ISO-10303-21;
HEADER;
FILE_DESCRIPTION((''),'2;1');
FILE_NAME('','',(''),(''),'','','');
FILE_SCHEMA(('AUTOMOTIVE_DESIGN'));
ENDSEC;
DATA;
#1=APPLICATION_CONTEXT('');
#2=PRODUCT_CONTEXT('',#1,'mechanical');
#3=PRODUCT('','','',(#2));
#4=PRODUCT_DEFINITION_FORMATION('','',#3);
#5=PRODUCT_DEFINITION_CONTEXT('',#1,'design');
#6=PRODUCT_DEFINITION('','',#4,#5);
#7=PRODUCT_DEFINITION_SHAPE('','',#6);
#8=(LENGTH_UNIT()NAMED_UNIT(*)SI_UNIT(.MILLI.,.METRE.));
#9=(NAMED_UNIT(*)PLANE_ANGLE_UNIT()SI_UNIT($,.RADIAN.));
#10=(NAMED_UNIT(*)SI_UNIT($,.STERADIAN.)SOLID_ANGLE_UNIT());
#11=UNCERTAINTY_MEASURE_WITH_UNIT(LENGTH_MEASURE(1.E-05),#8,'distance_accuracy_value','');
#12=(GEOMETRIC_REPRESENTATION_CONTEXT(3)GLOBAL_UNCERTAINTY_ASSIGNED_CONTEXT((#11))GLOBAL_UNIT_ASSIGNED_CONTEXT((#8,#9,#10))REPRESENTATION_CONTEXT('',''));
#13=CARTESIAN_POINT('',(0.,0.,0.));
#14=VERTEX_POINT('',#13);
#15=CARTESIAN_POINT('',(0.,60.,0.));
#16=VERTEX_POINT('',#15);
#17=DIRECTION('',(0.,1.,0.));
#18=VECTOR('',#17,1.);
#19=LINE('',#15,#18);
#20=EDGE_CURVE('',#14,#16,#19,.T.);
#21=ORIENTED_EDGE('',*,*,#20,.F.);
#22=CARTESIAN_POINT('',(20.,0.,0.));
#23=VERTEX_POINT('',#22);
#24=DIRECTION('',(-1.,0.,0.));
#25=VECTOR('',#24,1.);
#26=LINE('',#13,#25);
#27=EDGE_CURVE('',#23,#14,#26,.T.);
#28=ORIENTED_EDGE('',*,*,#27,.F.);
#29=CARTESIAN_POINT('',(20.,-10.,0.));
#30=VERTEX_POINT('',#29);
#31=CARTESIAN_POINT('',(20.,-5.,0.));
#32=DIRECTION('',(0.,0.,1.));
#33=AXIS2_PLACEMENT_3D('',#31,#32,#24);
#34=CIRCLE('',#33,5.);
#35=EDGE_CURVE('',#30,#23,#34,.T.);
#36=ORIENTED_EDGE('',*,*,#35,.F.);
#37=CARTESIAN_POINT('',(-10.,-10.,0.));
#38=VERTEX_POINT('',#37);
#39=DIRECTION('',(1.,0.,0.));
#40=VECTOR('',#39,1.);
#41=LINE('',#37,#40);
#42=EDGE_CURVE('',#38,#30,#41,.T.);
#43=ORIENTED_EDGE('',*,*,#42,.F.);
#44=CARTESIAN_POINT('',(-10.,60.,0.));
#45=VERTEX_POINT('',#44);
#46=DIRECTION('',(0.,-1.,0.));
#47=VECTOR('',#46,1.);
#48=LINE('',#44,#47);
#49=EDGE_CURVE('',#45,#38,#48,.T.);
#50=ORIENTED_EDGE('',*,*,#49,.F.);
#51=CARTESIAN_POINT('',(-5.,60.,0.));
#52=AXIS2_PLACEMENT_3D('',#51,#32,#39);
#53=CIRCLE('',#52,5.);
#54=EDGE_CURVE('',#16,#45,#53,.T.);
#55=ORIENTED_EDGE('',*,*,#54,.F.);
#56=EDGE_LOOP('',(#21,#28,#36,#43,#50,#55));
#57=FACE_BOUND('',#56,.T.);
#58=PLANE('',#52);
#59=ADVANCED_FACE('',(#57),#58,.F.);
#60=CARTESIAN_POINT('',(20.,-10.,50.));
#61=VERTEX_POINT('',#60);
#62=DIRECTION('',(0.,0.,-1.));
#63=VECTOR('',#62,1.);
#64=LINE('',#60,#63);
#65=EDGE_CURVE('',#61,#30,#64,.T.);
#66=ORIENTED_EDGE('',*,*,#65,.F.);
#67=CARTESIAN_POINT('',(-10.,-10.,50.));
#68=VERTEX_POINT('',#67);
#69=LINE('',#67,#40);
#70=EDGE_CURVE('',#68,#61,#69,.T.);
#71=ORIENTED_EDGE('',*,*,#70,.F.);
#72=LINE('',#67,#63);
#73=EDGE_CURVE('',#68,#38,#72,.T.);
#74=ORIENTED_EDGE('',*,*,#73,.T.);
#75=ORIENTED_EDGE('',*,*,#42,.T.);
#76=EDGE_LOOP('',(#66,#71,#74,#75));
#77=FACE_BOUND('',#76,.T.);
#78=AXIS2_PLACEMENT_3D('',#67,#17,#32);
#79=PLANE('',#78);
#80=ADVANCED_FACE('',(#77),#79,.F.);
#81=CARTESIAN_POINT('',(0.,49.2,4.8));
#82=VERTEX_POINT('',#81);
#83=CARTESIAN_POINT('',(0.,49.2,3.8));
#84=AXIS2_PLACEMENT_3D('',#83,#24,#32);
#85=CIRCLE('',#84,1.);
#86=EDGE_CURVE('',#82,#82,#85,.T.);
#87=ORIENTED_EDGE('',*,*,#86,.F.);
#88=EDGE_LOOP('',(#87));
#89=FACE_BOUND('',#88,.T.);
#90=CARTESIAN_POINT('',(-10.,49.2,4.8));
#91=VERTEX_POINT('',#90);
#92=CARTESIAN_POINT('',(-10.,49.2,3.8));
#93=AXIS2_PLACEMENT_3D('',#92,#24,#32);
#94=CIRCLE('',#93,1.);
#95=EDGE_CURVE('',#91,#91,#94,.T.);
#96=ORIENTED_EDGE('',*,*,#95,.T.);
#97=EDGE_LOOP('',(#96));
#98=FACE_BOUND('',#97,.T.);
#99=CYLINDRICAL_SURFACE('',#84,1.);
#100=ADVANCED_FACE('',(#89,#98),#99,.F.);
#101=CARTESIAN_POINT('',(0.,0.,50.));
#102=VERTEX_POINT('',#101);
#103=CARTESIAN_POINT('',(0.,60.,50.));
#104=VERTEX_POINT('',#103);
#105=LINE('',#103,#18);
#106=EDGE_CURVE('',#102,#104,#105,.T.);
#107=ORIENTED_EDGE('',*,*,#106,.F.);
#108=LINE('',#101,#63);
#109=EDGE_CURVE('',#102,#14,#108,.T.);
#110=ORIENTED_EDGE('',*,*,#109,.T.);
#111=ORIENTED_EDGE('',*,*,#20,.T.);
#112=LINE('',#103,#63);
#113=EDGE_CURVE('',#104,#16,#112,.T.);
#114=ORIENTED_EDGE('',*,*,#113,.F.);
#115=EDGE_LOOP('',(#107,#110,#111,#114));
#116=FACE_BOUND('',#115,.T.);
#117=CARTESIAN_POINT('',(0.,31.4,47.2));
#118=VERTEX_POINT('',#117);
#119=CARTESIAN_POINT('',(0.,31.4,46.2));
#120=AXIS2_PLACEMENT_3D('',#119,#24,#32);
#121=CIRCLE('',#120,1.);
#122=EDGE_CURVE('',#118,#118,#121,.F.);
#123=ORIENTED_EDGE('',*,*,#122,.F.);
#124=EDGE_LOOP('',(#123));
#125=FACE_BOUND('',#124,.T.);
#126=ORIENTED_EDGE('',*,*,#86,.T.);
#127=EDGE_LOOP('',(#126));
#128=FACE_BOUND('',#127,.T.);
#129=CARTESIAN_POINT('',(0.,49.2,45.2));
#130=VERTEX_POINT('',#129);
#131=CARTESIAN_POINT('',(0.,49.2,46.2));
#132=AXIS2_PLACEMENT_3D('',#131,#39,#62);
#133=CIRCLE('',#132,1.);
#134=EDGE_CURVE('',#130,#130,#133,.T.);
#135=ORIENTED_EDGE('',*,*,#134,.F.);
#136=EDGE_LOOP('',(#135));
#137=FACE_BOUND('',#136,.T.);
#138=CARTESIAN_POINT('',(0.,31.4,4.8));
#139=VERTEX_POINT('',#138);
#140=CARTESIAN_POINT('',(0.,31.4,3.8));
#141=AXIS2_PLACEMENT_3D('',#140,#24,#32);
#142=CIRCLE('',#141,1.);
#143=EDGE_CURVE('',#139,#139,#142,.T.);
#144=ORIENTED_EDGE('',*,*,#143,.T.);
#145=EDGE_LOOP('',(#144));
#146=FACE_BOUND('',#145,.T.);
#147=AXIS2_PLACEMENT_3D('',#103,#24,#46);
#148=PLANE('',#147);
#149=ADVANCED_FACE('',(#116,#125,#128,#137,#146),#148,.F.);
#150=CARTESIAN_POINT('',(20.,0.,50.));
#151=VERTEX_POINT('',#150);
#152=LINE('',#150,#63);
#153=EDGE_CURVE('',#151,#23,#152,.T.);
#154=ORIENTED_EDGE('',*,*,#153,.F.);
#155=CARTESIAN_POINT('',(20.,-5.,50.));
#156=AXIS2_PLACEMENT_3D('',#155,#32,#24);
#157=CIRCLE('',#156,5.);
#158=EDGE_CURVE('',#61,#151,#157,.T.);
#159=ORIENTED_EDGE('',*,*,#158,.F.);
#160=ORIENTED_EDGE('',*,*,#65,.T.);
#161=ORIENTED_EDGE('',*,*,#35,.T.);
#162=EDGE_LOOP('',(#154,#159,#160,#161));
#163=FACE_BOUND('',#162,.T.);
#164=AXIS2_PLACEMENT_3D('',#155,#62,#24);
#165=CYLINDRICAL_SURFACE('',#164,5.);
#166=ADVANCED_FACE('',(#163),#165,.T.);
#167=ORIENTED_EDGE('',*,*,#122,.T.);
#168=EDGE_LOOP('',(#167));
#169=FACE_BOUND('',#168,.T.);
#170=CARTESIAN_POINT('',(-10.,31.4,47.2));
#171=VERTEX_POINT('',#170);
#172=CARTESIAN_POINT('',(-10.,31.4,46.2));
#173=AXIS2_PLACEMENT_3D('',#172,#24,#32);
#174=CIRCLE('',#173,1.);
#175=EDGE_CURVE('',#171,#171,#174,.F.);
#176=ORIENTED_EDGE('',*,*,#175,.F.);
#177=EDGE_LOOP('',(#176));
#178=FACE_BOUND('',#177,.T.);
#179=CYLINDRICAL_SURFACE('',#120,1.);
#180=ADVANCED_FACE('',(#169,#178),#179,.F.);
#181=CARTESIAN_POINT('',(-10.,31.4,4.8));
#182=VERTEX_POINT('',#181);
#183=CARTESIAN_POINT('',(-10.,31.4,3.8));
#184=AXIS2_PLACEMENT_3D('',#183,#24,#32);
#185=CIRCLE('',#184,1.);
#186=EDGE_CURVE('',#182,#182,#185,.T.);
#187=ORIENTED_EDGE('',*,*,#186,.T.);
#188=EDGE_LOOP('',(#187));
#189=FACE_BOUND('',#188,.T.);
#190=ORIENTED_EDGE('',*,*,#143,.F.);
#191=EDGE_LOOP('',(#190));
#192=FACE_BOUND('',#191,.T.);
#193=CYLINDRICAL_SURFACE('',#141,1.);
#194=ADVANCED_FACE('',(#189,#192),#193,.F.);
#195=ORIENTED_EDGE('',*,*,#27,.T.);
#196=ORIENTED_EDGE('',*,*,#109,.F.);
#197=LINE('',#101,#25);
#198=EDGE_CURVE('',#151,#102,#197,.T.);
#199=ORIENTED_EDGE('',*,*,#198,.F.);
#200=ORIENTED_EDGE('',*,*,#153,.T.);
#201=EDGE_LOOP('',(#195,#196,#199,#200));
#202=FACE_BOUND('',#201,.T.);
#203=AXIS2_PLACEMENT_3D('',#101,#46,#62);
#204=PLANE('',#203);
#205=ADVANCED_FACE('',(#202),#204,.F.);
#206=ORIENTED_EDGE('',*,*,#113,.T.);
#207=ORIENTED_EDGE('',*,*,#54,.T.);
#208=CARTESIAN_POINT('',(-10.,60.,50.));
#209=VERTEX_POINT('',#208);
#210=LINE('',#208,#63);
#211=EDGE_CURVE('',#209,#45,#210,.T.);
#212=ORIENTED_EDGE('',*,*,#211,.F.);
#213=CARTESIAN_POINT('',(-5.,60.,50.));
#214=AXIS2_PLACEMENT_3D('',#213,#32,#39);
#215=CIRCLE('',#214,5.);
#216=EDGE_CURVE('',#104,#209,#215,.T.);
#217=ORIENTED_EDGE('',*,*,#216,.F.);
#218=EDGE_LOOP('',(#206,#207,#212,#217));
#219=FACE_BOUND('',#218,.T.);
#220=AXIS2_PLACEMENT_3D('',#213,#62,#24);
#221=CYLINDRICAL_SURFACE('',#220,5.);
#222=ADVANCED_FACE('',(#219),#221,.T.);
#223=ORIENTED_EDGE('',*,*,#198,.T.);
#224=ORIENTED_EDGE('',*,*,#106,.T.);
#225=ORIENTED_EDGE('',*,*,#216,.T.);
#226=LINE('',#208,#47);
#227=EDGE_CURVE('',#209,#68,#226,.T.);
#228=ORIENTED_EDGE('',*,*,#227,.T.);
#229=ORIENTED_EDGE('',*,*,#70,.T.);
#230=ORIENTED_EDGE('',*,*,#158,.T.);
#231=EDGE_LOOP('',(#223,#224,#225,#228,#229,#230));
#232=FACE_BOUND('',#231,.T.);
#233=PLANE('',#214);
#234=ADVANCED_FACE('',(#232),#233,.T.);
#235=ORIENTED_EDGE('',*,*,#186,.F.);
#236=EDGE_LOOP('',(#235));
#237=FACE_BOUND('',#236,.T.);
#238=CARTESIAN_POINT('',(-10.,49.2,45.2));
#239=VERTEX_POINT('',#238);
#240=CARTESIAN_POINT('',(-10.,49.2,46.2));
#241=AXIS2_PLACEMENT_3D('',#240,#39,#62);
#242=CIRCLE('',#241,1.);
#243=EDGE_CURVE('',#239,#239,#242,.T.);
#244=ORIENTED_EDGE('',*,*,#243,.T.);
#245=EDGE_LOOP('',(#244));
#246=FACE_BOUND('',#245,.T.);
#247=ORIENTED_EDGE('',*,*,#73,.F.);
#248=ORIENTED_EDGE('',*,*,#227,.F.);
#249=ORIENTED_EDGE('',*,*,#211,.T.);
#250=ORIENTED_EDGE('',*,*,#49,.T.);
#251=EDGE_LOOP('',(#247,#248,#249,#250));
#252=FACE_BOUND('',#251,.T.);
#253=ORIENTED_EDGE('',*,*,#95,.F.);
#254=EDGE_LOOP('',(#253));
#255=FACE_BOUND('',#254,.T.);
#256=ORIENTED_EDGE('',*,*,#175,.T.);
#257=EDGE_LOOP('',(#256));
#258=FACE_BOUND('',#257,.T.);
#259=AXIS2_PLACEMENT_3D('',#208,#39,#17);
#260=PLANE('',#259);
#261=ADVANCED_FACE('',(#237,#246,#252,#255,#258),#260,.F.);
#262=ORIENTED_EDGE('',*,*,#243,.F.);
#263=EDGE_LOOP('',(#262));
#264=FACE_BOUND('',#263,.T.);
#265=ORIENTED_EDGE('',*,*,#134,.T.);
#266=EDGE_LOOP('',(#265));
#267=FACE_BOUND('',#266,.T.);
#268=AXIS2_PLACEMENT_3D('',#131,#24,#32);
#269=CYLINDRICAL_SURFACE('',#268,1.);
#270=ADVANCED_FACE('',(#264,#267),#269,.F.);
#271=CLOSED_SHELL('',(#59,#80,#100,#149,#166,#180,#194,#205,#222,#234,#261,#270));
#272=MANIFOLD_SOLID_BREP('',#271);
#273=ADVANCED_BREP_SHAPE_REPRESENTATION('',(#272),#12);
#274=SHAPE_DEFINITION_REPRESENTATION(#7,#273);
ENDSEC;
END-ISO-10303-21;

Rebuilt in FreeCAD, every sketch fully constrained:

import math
import FreeCAD as App
import Part
import Sketcher
from FreeCAD import Vector

doc = App.newDocument("Part")
body = doc.addObject("PartDesign::Body", "Body")

# Sketch on XY plane
sketch1 = body.newObject("Sketcher::SketchObject", "Sketch")
sketch1.AttachmentSupport = (doc.getObject("XY_Plane"), [""])
sketch1.MapMode = "FlatFace"
sketch1.addGeometry([
    Part.LineSegment(Vector(0, 0, 0), Vector(0, 60, 0)),  # 0
    Part.ArcOfCircle(Part.Circle(Vector(-5, 60, 0), Vector(0, 0, 1), 5), math.radians(0), math.radians(180)),  # 1
    Part.LineSegment(Vector(-10, 60, 0), Vector(-10, -10, 0)),  # 2
    Part.LineSegment(Vector(-10, -10, 0), Vector(20, -10, 0)),  # 3
    Part.ArcOfCircle(Part.Circle(Vector(20, -5, 0), Vector(0, 0, 1), 5), math.radians(-90), math.radians(90)),  # 4
    Part.LineSegment(Vector(20, 0, 0), Vector(0, 0, 0)),  # 5
], False)
sketch1.addConstraint([
    Sketcher.Constraint("Tangent", 0, 2, 1, 1),
    Sketcher.Constraint("Tangent", 1, 2, 2, 1),
    Sketcher.Constraint("Coincident", 2, 2, 3, 1),
    Sketcher.Constraint("Tangent", 3, 2, 4, 1),
    Sketcher.Constraint("Tangent", 4, 2, 5, 1),
    Sketcher.Constraint("Coincident", 5, 2, 0, 1),
    Sketcher.Constraint("Vertical", 0),
    Sketcher.Constraint("Vertical", 2),
    Sketcher.Constraint("Horizontal", 3),
    Sketcher.Constraint("Horizontal", 5),
    Sketcher.Constraint("Coincident", 5, 2, -1, 1),
    Sketcher.Constraint("Equal", 1, 4),
    Sketcher.Constraint("Radius", 1, 5.0),
    Sketcher.Constraint("DistanceX", 3, 1, 3, 2, 30.0),
    Sketcher.Constraint("DistanceY", 0, 1, 0, 2, 60.0),
])
pad1 = body.newObject("PartDesign::Pad", "Pad")
pad1.Profile = sketch1
pad1.Length = 50

# Sketch on YZ plane
sketch2 = body.newObject("Sketcher::SketchObject", "Sketch001")
sketch2.AttachmentSupport = (doc.getObject("YZ_Plane"), [""])
sketch2.MapMode = "FlatFace"
sketch2.AttachmentOffset = App.Placement(Vector(0, 0, -10), App.Rotation())
sketch2.addGeometry([
    Part.Circle(Vector(31.4, 3.8, 0), Vector(0, 0, 1), 1),
    Part.Circle(Vector(49.2, 3.8, 0), Vector(0, 0, 1), 1),
    Part.Circle(Vector(31.4, 46.2, 0), Vector(0, 0, 1), 1),
    Part.Circle(Vector(49.2, 46.2, 0), Vector(0, 0, 1), 1),
], False)
sketch2.addConstraint([
    Sketcher.Constraint("Equal", 0, 1),
    Sketcher.Constraint("Equal", 1, 2),
    Sketcher.Constraint("Equal", 2, 3),
    Sketcher.Constraint("Horizontal", 0, 3, 1, 3),
    Sketcher.Constraint("Horizontal", 2, 3, 3, 3),
    Sketcher.Constraint("Vertical", 0, 3, 2, 3),
    Sketcher.Constraint("Vertical", 1, 3, 3, 3),
    Sketcher.Constraint("Diameter", 0, 2.0),
    Sketcher.Constraint("DistanceX", -1, 1, 0, 3, 31.4),
    Sketcher.Constraint("DistanceY", -1, 1, 0, 3, 3.8),
    Sketcher.Constraint("DistanceX", -1, 1, 1, 3, 49.2),
    Sketcher.Constraint("DistanceY", -1, 1, 2, 3, 46.2),
])
pocket1 = body.newObject("PartDesign::Pocket", "Pocket")
pocket1.Profile = sketch2
pocket1.Length = 10
pocket1.Reversed = True

doc.recompute()
